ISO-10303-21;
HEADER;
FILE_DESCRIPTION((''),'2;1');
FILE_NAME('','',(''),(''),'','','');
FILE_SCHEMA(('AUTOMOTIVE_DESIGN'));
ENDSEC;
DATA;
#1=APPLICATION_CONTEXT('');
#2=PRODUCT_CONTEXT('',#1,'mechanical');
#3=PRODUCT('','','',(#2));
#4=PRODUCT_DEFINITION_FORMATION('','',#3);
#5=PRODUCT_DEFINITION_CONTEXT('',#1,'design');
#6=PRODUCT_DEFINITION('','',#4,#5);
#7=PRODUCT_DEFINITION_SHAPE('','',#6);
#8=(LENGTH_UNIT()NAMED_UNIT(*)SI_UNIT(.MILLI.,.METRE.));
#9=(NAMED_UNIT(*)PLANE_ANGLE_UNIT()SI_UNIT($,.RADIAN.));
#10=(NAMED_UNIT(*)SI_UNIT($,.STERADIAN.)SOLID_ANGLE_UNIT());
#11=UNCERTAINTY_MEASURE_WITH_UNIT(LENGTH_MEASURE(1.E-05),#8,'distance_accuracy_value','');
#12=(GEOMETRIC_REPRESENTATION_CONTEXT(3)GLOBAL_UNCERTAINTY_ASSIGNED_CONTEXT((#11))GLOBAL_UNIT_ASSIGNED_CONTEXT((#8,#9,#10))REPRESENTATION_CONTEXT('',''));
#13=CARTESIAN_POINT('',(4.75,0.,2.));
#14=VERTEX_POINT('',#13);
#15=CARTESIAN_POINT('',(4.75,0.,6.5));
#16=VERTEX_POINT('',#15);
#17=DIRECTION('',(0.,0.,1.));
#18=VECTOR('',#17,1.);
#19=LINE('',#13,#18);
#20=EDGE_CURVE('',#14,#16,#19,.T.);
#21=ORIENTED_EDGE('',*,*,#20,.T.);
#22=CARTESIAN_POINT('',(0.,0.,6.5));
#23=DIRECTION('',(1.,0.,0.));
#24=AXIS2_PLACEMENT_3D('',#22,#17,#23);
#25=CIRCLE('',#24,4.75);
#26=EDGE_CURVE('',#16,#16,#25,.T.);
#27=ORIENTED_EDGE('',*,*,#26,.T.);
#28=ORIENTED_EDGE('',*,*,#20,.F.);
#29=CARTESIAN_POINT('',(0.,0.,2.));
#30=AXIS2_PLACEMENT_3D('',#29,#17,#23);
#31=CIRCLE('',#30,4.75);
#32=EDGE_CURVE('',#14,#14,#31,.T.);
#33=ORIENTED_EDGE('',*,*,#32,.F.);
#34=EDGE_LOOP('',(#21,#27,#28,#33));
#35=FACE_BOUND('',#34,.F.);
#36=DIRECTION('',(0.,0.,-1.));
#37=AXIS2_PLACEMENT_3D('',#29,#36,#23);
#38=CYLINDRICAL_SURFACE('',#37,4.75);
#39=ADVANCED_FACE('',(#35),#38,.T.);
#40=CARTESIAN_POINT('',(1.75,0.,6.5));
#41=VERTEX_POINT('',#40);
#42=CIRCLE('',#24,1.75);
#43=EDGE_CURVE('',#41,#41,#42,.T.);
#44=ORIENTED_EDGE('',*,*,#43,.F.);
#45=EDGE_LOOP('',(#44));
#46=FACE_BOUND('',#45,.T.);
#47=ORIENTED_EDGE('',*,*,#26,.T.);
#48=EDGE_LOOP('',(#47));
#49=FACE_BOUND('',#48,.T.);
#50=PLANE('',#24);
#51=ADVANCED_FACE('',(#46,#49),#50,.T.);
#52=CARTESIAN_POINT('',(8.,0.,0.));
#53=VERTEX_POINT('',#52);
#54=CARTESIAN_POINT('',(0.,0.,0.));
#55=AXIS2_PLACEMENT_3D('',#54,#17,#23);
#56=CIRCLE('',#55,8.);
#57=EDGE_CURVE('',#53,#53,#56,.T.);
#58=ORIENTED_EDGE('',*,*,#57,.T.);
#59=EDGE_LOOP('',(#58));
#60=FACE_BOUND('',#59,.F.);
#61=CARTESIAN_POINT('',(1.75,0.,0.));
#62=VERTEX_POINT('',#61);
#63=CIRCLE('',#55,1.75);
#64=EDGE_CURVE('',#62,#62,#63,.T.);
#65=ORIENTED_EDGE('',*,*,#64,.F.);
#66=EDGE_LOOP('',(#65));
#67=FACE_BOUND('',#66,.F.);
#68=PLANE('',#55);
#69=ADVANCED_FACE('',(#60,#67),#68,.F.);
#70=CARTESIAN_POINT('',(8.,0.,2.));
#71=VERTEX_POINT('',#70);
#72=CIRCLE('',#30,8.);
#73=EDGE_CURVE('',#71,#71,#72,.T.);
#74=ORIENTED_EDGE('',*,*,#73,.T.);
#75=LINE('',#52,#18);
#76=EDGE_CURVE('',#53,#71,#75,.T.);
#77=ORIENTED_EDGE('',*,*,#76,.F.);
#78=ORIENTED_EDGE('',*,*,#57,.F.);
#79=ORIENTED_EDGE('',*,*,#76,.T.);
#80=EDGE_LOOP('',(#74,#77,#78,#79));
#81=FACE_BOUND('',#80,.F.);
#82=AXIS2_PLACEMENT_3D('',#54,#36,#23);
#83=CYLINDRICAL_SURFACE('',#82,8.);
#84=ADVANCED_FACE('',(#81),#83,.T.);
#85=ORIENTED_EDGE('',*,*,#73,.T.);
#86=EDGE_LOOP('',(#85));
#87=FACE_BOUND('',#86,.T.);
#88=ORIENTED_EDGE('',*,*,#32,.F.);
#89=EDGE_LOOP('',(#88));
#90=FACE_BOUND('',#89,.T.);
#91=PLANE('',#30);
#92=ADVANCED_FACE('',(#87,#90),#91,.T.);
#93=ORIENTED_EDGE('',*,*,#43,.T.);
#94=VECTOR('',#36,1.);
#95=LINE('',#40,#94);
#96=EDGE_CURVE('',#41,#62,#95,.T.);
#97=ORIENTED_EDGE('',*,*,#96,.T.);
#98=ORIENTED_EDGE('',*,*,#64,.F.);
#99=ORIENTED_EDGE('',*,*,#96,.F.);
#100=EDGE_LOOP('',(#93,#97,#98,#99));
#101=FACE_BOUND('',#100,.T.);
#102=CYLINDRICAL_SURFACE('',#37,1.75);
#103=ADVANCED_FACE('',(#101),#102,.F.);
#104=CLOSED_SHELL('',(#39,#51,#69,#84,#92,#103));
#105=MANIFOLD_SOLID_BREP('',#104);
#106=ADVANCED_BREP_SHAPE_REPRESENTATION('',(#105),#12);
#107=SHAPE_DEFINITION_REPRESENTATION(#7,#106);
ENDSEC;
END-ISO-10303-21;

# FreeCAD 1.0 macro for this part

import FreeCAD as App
import Part
import Sketcher

V = App.Vector
Q = App.Units.Quantity

doc = App.newDocument("Part")
body = doc.addObject("PartDesign::Body", "Body")

# Sketch on XY plane
sketch1 = body.newObject("Sketcher::SketchObject", "Sketch")
sketch1.AttachmentSupport = (doc.getObject("XY_Plane"), [""])
sketch1.MapMode = "FlatFace"
sketch1.addGeometry(Part.Circle(V(0, 0, 0), V(0, 0, 1), 8), False)
sketch1.addGeometry(Part.Circle(V(0, 0, 0), V(0, 0, 1), 1.75), False)
sketch1.addConstraint(Sketcher.Constraint("Coincident", 0, 3, -1, 1))
sketch1.addConstraint(Sketcher.Constraint("Coincident", 1, 3, -1, 1))
sketch1.addConstraint(Sketcher.Constraint("Diameter", 0, Q("16 mm")))
sketch1.addConstraint(Sketcher.Constraint("Diameter", 1, Q("3.5 mm")))
pad1 = body.newObject("PartDesign::Pad", "Pad")
pad1.Profile = sketch1
pad1.Length = 2

# Sketch on XY plane
sketch2 = body.newObject("Sketcher::SketchObject", "Sketch001")
sketch2.AttachmentSupport = (doc.getObject("XY_Plane"), [""])
sketch2.MapMode = "FlatFace"
sketch2.AttachmentOffset = App.Placement(V(0, 0, 2), App.Rotation())
sketch2.addGeometry(Part.Circle(V(0, 0, 0), V(0, 0, 1), 4.75), False)
sketch2.addGeometry(Part.Circle(V(0, 0, 0), V(0, 0, 1), 1.75), False)
sketch2.addConstraint(Sketcher.Constraint("Coincident", 0, 3, -1, 1))
sketch2.addConstraint(Sketcher.Constraint("Coincident", 1, 3, -1, 1))
sketch2.addConstraint(Sketcher.Constraint("Diameter", 0, Q("9.5 mm")))
sketch2.addConstraint(Sketcher.Constraint("Diameter", 1, Q("3.5 mm")))
pad2 = body.newObject("PartDesign::Pad", "Pad001")
pad2.Profile = sketch2
pad2.Length = 4.5

doc.recompute()
